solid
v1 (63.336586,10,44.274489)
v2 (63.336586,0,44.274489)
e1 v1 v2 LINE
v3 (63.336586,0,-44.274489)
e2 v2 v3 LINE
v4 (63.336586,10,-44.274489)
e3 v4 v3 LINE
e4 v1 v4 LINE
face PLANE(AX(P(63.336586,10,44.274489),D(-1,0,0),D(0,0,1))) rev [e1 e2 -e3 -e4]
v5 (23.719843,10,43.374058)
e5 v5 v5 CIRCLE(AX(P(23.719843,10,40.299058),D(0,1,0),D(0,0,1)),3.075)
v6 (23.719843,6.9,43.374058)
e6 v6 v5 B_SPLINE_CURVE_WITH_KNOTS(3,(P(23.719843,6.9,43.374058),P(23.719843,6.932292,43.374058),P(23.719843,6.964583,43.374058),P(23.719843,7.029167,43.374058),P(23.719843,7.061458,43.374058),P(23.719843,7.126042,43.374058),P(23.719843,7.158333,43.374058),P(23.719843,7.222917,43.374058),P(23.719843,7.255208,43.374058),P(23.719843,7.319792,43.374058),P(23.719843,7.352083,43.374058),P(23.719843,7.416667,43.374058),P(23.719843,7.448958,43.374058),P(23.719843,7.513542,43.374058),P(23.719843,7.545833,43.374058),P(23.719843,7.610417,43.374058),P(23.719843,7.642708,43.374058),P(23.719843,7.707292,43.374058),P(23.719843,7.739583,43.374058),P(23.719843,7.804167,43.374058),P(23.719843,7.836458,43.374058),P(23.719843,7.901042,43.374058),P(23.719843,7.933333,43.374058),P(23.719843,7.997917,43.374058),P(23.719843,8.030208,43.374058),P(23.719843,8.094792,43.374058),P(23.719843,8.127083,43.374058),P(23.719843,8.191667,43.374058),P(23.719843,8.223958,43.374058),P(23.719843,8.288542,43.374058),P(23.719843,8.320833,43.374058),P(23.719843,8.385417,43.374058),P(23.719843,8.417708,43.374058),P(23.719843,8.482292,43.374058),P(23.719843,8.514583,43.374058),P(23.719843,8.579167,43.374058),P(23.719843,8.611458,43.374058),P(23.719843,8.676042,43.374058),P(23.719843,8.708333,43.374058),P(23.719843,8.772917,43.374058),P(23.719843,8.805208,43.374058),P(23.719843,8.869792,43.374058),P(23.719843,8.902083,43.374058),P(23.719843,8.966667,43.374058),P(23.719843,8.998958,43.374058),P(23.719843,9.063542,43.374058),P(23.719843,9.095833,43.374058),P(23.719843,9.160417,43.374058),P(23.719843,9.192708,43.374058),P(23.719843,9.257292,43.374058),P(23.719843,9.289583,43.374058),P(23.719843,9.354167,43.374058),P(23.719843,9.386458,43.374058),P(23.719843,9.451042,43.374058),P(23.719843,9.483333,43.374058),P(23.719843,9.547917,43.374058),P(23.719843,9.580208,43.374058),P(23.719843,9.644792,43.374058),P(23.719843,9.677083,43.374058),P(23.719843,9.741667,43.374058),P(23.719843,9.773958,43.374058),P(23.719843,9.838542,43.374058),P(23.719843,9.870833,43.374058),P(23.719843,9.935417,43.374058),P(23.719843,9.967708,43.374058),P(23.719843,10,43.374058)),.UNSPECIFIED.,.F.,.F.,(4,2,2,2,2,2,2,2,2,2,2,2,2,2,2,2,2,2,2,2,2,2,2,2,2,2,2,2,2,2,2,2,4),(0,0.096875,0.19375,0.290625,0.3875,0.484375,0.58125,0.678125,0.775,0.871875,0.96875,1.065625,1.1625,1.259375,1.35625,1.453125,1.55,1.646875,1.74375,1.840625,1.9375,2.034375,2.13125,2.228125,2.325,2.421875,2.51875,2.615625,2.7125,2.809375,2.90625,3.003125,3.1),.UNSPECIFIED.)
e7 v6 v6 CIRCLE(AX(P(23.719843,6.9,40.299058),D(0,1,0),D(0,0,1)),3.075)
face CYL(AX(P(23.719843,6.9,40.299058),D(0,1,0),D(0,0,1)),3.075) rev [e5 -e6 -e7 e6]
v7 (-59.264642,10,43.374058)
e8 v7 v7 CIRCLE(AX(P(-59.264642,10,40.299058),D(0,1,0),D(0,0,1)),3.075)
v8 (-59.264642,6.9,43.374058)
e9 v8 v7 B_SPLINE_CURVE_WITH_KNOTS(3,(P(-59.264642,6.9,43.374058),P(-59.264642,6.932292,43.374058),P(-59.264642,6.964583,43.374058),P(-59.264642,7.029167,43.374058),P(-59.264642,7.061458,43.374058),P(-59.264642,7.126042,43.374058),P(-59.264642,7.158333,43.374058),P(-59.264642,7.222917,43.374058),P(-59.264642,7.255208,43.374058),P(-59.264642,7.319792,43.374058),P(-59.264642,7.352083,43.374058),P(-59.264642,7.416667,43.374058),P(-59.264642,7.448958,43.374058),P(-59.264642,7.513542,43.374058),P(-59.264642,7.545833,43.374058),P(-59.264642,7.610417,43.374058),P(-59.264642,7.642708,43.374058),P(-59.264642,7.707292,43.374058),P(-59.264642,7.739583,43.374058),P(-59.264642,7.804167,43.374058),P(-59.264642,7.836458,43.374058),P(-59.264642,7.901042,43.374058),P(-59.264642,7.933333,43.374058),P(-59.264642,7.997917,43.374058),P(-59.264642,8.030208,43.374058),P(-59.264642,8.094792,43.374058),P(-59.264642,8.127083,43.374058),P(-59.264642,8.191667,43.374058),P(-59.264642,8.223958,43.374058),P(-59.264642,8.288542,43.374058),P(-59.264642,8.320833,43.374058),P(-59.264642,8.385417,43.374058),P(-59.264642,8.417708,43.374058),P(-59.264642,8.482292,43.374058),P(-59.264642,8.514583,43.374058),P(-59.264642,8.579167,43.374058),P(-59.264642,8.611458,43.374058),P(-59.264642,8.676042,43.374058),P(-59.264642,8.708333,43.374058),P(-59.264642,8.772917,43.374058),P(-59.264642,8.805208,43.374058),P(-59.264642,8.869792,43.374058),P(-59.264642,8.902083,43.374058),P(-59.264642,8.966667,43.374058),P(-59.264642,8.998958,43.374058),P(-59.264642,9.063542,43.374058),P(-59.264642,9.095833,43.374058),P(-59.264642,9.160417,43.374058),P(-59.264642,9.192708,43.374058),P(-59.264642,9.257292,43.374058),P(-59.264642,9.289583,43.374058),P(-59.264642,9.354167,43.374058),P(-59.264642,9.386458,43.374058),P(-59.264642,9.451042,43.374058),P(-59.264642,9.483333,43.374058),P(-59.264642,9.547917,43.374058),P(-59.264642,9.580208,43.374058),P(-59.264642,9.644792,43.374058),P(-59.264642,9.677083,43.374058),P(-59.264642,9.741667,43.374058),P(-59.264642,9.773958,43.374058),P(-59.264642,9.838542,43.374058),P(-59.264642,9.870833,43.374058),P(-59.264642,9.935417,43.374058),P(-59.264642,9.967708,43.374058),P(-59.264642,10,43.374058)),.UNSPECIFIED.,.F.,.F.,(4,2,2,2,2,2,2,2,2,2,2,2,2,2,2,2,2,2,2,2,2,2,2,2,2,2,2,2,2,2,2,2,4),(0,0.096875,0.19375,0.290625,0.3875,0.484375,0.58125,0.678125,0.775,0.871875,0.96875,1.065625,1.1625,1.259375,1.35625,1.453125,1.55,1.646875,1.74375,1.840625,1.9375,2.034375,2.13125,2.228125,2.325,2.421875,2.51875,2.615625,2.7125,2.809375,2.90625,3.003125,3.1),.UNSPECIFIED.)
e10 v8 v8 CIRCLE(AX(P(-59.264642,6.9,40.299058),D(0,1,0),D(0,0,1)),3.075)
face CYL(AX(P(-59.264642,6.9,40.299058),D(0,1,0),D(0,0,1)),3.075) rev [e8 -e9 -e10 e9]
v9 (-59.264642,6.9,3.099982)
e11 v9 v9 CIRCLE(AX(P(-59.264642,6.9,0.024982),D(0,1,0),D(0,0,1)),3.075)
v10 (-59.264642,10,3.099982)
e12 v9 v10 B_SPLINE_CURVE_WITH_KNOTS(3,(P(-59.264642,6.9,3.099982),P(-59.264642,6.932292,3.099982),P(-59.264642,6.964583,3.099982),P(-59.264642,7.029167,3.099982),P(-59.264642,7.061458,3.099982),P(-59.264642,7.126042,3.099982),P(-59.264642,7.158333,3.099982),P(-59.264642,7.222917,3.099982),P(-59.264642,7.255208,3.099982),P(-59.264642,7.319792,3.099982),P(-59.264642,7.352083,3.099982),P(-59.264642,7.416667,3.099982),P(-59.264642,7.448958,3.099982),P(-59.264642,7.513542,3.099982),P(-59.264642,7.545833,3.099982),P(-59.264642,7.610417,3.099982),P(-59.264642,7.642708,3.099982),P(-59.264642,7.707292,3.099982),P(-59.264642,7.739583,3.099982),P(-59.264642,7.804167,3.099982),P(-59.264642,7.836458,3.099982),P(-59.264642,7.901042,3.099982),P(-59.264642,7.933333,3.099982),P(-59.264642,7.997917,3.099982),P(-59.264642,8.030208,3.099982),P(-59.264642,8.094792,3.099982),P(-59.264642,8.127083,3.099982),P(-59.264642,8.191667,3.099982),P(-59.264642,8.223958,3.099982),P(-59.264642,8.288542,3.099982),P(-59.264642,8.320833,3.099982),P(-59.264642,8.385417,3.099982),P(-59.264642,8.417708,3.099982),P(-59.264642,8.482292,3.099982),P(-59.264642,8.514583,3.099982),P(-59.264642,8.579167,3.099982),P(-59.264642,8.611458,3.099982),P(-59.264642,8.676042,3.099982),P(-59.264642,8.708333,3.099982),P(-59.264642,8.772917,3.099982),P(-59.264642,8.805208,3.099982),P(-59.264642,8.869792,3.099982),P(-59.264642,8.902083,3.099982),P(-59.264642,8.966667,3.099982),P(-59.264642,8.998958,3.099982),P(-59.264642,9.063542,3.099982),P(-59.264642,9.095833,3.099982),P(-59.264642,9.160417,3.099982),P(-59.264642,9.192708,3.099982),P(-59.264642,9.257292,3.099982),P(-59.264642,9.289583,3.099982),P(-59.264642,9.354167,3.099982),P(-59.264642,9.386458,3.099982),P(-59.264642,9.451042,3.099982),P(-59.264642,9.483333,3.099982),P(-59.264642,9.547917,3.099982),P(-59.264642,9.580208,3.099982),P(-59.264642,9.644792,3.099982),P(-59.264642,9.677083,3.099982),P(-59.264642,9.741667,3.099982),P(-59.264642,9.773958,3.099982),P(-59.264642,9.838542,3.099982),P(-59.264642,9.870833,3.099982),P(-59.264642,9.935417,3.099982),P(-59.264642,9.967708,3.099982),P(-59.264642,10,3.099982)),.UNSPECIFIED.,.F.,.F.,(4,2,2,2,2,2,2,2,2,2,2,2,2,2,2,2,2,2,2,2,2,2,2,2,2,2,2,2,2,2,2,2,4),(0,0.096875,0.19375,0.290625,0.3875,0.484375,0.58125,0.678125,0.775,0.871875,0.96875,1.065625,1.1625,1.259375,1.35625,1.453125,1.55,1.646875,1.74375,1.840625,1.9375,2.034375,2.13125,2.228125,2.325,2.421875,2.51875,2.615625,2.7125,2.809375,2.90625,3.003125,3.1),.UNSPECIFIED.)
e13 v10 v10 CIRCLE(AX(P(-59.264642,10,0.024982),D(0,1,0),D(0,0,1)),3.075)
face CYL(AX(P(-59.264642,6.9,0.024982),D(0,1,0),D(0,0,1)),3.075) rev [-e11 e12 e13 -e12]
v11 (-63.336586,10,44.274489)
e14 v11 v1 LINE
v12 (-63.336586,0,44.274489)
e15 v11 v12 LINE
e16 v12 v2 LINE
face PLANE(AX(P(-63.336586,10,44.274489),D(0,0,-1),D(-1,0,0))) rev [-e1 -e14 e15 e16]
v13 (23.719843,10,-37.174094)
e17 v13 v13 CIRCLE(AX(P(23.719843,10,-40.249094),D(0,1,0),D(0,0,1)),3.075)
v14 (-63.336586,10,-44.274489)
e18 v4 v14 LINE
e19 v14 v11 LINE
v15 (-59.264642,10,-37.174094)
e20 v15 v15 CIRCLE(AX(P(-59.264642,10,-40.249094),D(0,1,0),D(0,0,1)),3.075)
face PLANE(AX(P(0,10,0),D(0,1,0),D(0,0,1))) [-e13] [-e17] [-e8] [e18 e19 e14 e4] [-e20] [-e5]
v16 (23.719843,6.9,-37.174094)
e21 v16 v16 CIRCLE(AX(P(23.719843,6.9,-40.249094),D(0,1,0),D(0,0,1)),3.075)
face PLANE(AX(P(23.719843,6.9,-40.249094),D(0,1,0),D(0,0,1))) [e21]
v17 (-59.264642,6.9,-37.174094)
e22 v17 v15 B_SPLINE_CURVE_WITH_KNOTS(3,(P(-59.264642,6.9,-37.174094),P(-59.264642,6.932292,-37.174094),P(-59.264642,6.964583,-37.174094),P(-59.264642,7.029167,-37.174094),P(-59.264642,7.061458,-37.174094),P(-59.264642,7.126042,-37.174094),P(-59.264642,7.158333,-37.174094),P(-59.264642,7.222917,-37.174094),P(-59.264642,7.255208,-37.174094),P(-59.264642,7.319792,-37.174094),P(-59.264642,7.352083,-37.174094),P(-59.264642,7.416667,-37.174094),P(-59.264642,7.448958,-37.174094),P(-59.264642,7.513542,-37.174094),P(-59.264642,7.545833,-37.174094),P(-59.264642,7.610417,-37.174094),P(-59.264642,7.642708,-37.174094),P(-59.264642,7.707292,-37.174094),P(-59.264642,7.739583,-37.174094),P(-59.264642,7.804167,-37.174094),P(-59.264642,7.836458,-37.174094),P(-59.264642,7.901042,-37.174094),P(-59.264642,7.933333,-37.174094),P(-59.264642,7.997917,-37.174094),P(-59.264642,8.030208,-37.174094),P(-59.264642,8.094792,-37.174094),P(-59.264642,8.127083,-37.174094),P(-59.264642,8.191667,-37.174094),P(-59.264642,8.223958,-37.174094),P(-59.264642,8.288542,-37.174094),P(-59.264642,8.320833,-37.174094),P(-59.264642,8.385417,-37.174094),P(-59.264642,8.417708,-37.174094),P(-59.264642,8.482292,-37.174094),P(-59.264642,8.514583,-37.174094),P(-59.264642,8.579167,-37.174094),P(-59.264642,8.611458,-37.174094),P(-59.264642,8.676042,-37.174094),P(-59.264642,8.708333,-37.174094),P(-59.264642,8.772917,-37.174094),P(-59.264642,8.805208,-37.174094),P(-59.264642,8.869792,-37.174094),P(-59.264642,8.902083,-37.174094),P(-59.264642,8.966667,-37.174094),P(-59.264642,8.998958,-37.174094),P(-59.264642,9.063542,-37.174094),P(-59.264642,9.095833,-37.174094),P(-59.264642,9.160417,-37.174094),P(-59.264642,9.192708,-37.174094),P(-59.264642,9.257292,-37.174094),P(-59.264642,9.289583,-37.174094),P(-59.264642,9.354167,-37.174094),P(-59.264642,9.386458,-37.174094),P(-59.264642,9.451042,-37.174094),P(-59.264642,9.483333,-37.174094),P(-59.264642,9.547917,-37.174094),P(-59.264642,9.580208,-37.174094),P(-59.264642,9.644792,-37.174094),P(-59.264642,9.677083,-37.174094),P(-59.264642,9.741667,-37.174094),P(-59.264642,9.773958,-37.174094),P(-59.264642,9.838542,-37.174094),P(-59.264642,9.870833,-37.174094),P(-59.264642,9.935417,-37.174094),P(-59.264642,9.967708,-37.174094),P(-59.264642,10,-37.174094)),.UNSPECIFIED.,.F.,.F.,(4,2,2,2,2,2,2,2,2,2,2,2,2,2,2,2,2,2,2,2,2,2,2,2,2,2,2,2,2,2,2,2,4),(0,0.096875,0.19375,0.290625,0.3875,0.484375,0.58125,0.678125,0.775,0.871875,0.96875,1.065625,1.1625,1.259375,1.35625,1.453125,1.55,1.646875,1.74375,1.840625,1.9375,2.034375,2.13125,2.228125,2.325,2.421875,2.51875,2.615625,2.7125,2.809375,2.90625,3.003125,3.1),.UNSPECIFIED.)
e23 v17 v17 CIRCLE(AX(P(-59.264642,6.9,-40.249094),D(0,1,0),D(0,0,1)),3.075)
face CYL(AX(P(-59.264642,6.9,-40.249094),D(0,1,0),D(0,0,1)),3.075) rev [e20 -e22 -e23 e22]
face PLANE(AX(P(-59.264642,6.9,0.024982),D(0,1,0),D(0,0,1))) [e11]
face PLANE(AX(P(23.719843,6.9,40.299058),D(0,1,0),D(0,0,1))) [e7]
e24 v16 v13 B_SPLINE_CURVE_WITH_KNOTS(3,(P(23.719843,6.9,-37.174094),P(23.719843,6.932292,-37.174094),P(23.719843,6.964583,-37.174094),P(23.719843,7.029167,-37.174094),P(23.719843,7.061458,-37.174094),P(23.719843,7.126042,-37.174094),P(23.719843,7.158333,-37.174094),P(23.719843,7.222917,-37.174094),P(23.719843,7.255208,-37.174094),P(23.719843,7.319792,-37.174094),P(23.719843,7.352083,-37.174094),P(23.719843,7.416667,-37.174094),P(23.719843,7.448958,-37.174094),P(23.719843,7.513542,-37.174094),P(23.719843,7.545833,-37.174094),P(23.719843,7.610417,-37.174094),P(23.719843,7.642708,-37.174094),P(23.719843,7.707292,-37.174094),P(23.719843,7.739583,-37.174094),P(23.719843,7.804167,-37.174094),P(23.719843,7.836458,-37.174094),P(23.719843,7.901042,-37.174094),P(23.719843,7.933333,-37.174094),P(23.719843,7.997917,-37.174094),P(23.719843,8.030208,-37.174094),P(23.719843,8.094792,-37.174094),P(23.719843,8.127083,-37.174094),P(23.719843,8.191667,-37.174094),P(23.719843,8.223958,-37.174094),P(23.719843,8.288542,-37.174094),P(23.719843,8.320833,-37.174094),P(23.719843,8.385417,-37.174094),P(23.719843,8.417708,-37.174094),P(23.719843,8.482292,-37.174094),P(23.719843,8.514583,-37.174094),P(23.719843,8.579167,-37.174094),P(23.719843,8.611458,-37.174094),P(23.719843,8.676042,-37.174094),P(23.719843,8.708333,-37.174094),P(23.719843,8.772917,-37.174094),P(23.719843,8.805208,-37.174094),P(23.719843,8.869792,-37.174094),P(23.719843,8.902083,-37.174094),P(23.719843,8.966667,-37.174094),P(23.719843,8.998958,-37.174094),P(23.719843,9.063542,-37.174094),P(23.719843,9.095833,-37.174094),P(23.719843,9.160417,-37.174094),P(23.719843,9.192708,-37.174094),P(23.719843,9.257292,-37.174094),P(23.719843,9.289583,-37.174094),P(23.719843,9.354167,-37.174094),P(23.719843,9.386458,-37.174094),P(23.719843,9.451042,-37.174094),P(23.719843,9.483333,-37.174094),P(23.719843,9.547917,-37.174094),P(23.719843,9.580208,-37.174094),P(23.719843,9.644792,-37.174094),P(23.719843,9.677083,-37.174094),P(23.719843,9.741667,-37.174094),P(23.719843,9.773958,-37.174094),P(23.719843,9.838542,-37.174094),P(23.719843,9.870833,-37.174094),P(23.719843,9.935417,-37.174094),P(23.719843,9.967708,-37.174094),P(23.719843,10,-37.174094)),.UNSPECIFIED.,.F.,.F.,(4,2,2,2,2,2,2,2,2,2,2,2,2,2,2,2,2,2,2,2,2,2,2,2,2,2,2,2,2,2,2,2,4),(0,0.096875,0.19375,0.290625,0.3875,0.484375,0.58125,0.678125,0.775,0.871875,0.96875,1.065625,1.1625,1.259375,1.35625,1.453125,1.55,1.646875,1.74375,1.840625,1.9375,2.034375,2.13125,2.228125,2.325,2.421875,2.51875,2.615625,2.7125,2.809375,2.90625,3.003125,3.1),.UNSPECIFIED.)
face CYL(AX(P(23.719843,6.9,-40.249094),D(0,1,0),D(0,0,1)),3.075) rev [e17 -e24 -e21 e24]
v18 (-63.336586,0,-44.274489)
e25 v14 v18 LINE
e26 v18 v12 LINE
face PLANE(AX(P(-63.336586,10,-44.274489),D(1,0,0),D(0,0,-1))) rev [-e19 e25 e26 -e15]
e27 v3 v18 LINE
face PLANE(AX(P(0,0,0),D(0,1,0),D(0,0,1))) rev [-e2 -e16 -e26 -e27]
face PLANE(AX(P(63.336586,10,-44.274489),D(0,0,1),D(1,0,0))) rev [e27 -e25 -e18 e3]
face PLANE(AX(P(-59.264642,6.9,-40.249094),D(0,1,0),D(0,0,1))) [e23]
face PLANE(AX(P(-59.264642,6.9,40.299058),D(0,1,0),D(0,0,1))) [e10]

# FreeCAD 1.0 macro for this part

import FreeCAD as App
import Part
import Sketcher
from FreeCAD import Vector


def add_polygon(sketch, points):
    """Adds a closed chain of lines whose ends are joined by coincident constraints."""
    first, n = sketch.GeometryCount, len(points)
    for a, b in zip(points, points[1:] + points[:1]):
        sketch.addGeometry(Part.LineSegment(App.Vector(*a, 0), App.Vector(*b, 0)), False)
    for i in range(n):
        sketch.addConstraint(Sketcher.Constraint("Coincident", first + i, 2, first + (i + 1) % n, 1))

doc = App.newDocument("Part")
body = doc.addObject("PartDesign::Body", "Body")

# Sketch on XZ plane
sketch1 = body.newObject("Sketcher::SketchObject", "Sketch")
sketch1.AttachmentSupport = (doc.getObject("XZ_Plane"), [""])
sketch1.MapMode = "FlatFace"
add_polygon(sketch1, [(-63, -44), (-63, 44), (63, 44), (63, -44)])  # lines 0-3
sketch1.addConstraint([
    Sketcher.Constraint("Vertical", 0),
    Sketcher.Constraint("Horizontal", 1),
    Sketcher.Constraint("Vertical", 2),
    Sketcher.Constraint("Horizontal", 3),
    Sketcher.Constraint("Symmetric", 0, 2, 2, 2, -1, 1),
    Sketcher.Constraint("DistanceY", 0, 1, 0, 2, 88.548978),
    Sketcher.Constraint("DistanceX", 1, 1, 1, 2, 126.673172),
])
pad1 = body.newObject("PartDesign::Pad", "Pad")
pad1.Profile = sketch1
pad1.Length = 10
pad1.Reversed = True

# Sketch on XZ plane
sketch2 = body.newObject("Sketcher::SketchObject", "Sketch001")
sketch2.AttachmentSupport = (doc.getObject("XZ_Plane"), [""])
sketch2.MapMode = "FlatFace"
sketch2.AttachmentOffset = App.Placement(Vector(0, 0, -10), App.Rotation())
sketch2.addGeometry([
    Part.Circle(Vector(-59.3, -40.2, 0), Vector(0, 0, 1), 3.1),  # 0
    Part.Circle(Vector(-59.3, 0, 0), Vector(0, 0, 1), 3.1),  # 1
    Part.Circle(Vector(-59.3, 40.3, 0), Vector(0, 0, 1), 3.1),  # 2
    Part.Circle(Vector(23.7, 40.3, 0), Vector(0, 0, 1), 3.1),  # 3
    Part.Circle(Vector(23.7, -40.2, 0), Vector(0, 0, 1), 3.1),  # 4
], False)
sketch2.addConstraint([
    Sketcher.Constraint("Equal", 0, 1),
    Sketcher.Constraint("Equal", 1, 2),
    Sketcher.Constraint("Equal", 2, 3),
    Sketcher.Constraint("Equal", 3, 4),
    Sketcher.Constraint("Horizontal", 2, 3, 3, 3),
    Sketcher.Constraint("Horizontal", 0, 3, 4, 3),
    Sketcher.Constraint("Vertical", 0, 3, 1, 3),
    Sketcher.Constraint("Vertical", 1, 3, 2, 3),
    Sketcher.Constraint("Vertical", 3, 3, 4, 3),
    Sketcher.Constraint("Diameter", 0, 6.15),
    Sketcher.Constraint("DistanceY", -1, 1, 1, 3, 0.024982),
    Sketcher.Constraint("DistanceY", 0, 3, 2, 3, 80.548152),
    Sketcher.Constraint("DistanceX", 0, 3, -1, 1, 59.264642),
    Sketcher.Constraint("DistanceY", 0, 3, -1, 1, 40.249094),
    Sketcher.Constraint("DistanceX", -1, 1, 3, 3, 23.719843),
])
pocket1 = body.newObject("PartDesign::Pocket", "Pocket")
pocket1.Profile = sketch2
pocket1.Length = 3.1
pocket1.Reversed = True

doc.recompute()
